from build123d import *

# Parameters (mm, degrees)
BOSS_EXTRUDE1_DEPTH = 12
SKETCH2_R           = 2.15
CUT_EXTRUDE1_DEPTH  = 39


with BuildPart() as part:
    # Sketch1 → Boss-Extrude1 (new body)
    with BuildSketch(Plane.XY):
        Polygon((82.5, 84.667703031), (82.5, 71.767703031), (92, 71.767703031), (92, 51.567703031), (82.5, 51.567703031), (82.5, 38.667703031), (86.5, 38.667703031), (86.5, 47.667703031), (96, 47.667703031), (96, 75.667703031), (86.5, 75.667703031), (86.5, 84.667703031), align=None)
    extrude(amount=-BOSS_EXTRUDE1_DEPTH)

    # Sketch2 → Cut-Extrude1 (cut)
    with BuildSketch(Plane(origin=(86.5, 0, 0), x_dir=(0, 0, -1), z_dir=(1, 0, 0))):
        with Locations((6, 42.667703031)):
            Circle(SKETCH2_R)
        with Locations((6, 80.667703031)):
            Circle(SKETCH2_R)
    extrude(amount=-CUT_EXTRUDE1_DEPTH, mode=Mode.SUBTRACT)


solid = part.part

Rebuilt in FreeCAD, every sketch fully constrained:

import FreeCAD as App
import Part
import Sketcher
from FreeCAD import Vector


def add_polygon(sketch, points):
    """Adds a closed chain of lines whose ends are joined by coincident constraints."""
    first, n = sketch.GeometryCount, len(points)
    for a, b in zip(points, points[1:] + points[:1]):
        sketch.addGeometry(Part.LineSegment(App.Vector(*a, 0), App.Vector(*b, 0)), False)
    for i in range(n):
        sketch.addConstraint(Sketcher.Constraint("Coincident", first + i, 2, first + (i + 1) % n, 1))

doc = App.newDocument("Part")
body = doc.addObject("PartDesign::Body", "Body")

# Sketch on XY plane
sketch1 = body.newObject("Sketcher::SketchObject", "Sketch")
sketch1.AttachmentSupport = (doc.getObject("XY_Plane"), [""])
sketch1.MapMode = "FlatFace"
add_polygon(sketch1, [(82.5, 84.667703), (82.5, 71.767703), (92, 71.767703), (92, 51.567703), (82.5, 51.567703), (82.5, 38.667703), (86.5, 38.667703), (86.5, 47.667703), (96, 47.667703), (96, 75.667703), (86.5, 75.667703), (86.5, 84.667703)])  # lines 0-11
sketch1.addConstraint([
    Sketcher.Constraint("Vertical", 0),
    Sketcher.Constraint("Horizontal", 1),
    Sketcher.Constraint("Vertical", 2),
    Sketcher.Constraint("Horizontal", 3),
    Sketcher.Constraint("Vertical", 4),
    Sketcher.Constraint("Horizontal", 5),
    Sketcher.Constraint("Vertical", 6),
    Sketcher.Constraint("Horizontal", 7),
    Sketcher.Constraint("Vertical", 8),
    Sketcher.Constraint("Horizontal", 9),
    Sketcher.Constraint("Vertical", 10),
    Sketcher.Constraint("Horizontal", 11),
    Sketcher.Constraint("Vertical", 0, 2, 3, 2),
    Sketcher.Constraint("Vertical", 6, 2, 9, 2),
    Sketcher.Constraint("Equal", 3, 7),
    Sketcher.Constraint("Equal", 0, 4),
    Sketcher.Constraint("Equal", 6, 10),
    Sketcher.Constraint("DistanceX", 5, 1, 5, 2, 4.0),
    Sketcher.Constraint("DistanceY", 6, 1, 6, 2, 9.0),
    Sketcher.Constraint("DistanceY", 8, 1, 8, 2, 28.0),
    Sketcher.Constraint("DistanceX", 1, 1, 1, 2, 9.5),
    Sketcher.Constraint("DistanceY", 0, 2, 0, 1, 12.9),
    Sketcher.Constraint("DistanceX", -1, 1, 1, 2, 92.0),
    Sketcher.Constraint("DistanceY", -1, 1, 0, 2, 71.767703),
])
pad1 = body.newObject("PartDesign::Pad", "Pad")
pad1.Profile = sketch1
pad1.Length = 12
pad1.Reversed = True

# Sketch on YZ plane
sketch2 = body.newObject("Sketcher::SketchObject", "Sketch001")
sketch2.AttachmentSupport = (doc.getObject("YZ_Plane"), [""])
sketch2.MapMode = "FlatFace"
sketch2.AttachmentOffset = App.Placement(Vector(0, 0, 86.5), App.Rotation())
sketch2.addGeometry([
    Part.Circle(Vector(42.667703, -6, 0), Vector(0, 0, 1), 2.15),
    Part.Circle(Vector(80.667703, -6, 0), Vector(0, 0, 1), 2.15),
], False)
sketch2.addConstraint([
    Sketcher.Constraint("Equal", 0, 1),
    Sketcher.Constraint("Horizontal", 0, 3, 1, 3),
    Sketcher.Constraint("Diameter", 0, 4.3),
    Sketcher.Constraint("DistanceY", 0, 3, -1, 1, 6.0),
    Sketcher.Constraint("DistanceX", 0, 3, 1, 3, 38.0),
    Sketcher.Constraint("DistanceX", -1, 1, 0, 3, 42.667703),
])
pocket1 = body.newObject("PartDesign::Pocket", "Pocket")
pocket1.Profile = sketch2
pocket1.Length = 39

doc.recompute()
